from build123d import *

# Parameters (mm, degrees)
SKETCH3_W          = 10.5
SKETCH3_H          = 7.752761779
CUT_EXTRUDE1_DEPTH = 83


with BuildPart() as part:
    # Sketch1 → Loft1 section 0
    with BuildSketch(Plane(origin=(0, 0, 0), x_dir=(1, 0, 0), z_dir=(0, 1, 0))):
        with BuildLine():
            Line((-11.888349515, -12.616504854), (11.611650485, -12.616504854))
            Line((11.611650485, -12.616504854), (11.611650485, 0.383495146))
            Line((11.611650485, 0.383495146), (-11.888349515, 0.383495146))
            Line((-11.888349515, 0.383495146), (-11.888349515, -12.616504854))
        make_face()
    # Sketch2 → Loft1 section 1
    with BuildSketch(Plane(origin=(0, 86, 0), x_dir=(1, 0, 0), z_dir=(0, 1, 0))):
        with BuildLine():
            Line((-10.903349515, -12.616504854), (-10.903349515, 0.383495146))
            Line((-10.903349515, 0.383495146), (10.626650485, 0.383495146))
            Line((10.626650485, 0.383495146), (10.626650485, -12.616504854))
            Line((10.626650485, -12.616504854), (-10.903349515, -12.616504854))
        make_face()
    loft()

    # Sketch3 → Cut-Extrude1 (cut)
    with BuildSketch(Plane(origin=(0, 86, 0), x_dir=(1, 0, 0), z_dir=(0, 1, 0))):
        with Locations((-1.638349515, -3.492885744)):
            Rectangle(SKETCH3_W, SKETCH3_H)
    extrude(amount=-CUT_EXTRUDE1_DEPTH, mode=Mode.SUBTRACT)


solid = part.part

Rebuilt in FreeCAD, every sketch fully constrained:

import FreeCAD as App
import Part
import Sketcher
Q = App.Units.Quantity

doc = App.newDocument("Part")
body = doc.addObject("PartDesign::Body", "Body")

sketch1 = body.newObject("Sketcher::SketchObject", "Sketch")
sketch1.AttachmentSupport = (doc.getObject("XZ_Plane"), [""])
sketch1.MapMode = "FlatFace"
sketch1.addGeometry(Part.LineSegment(App.Vector(-12, 13, 0), App.Vector(12, 13, 0)), False)
sketch1.addGeometry(Part.LineSegment(App.Vector(12, 13, 0), App.Vector(12, 0, 0)), False)
sketch1.addGeometry(Part.LineSegment(App.Vector(12, 0, 0), App.Vector(-12, 0, 0)), False)
sketch1.addGeometry(Part.LineSegment(App.Vector(-12, 0, 0), App.Vector(-12, 13, 0)), False)
sketch1.addConstraint(Sketcher.Constraint("Coincident", 0, 2, 1, 1))
sketch1.addConstraint(Sketcher.Constraint("Coincident", 1, 2, 2, 1))
sketch1.addConstraint(Sketcher.Constraint("Coincident", 2, 2, 3, 1))
sketch1.addConstraint(Sketcher.Constraint("Coincident", 3, 2, 0, 1))
sketch1.addConstraint(Sketcher.Constraint("Horizontal", 0))
sketch1.addConstraint(Sketcher.Constraint("Vertical", 1))
sketch1.addConstraint(Sketcher.Constraint("Horizontal", 2))
sketch1.addConstraint(Sketcher.Constraint("Vertical", 3))
sketch1.addConstraint(Sketcher.Constraint("DistanceY", 1, 2, 1, 1, Q("13 mm")))
sketch1.addConstraint(Sketcher.Constraint("DistanceX", 0, 1, 0, 2, Q("23.5 mm")))
sketch1.addConstraint(Sketcher.Constraint("DistanceX", -1, 1, 0, 2, Q("11.61165 mm")))
sketch1.addConstraint(Sketcher.Constraint("DistanceY", -1, 1, 0, 2, Q("12.616505 mm")))

sketch2 = body.newObject("Sketcher::SketchObject", "Sketch001")
sketch2.AttachmentSupport = (doc.getObject("XZ_Plane"), [""])
sketch2.MapMode = "FlatFace"
sketch2.AttachmentOffset = App.Placement(App.Vector(0, 0, -86), App.Rotation())
sketch2.addGeometry(Part.LineSegment(App.Vector(-11, 0, 0), App.Vector(-11, 13, 0)), False)
sketch2.addGeometry(Part.LineSegment(App.Vector(-11, 13, 0), App.Vector(11, 13, 0)), False)
sketch2.addGeometry(Part.LineSegment(App.Vector(11, 13, 0), App.Vector(11, 0, 0)), False)
sketch2.addGeometry(Part.LineSegment(App.Vector(11, 0, 0), App.Vector(-11, 0, 0)), False)
sketch2.addConstraint(Sketcher.Constraint("Coincident", 0, 2, 1, 1))
sketch2.addConstraint(Sketcher.Constraint("Coincident", 1, 2, 2, 1))
sketch2.addConstraint(Sketcher.Constraint("Coincident", 2, 2, 3, 1))
sketch2.addConstraint(Sketcher.Constraint("Coincident", 3, 2, 0, 1))
sketch2.addConstraint(Sketcher.Constraint("Vertical", 0))
sketch2.addConstraint(Sketcher.Constraint("Horizontal", 1))
sketch2.addConstraint(Sketcher.Constraint("Vertical", 2))
sketch2.addConstraint(Sketcher.Constraint("Horizontal", 3))
sketch2.addConstraint(Sketcher.Constraint("DistanceY", 0, 1, 0, 2, Q("13 mm")))
sketch2.addConstraint(Sketcher.Constraint("DistanceX", 1, 1, 1, 2, Q("21.53 mm")))
sketch2.addConstraint(Sketcher.Constraint("DistanceX", 0, 2, -1, 1, Q("10.90335 mm")))
sketch2.addConstraint(Sketcher.Constraint("DistanceY", -1, 1, 0, 2, Q("12.616505 mm")))

additiveloft = body.newObject("PartDesign::AdditiveLoft", "AdditiveLoft")
additiveloft.Profile = sketch1
additiveloft.Sections = [sketch2]

sketch3 = body.newObject("Sketcher::SketchObject", "Sketch002")
sketch3.AttachmentSupport = (doc.getObject("XZ_Plane"), [""])
sketch3.MapMode = "FlatFace"
sketch3.AttachmentOffset = App.Placement(App.Vector(0, 0, -86), App.Rotation())
sketch3.addGeometry(Part.LineSegment(App.Vector(-7, 0, 0), App.Vector(-7, 7, 0)), False)
sketch3.addGeometry(Part.LineSegment(App.Vector(-7, 7, 0), App.Vector(4, 7, 0)), False)
sketch3.addGeometry(Part.LineSegment(App.Vector(4, 7, 0), App.Vector(4, 0, 0)), False)
sketch3.addGeometry(Part.LineSegment(App.Vector(4, 0, 0), App.Vector(-7, 0, 0)), False)
sketch3.addConstraint(Sketcher.Constraint("Coincident", 0, 2, 1, 1))
sketch3.addConstraint(Sketcher.Constraint("Coincident", 1, 2, 2, 1))
sketch3.addConstraint(Sketcher.Constraint("Coincident", 2, 2, 3, 1))
sketch3.addConstraint(Sketcher.Constraint("Coincident", 3, 2, 0, 1))
sketch3.addConstraint(Sketcher.Constraint("Vertical", 0))
sketch3.addConstraint(Sketcher.Constraint("Horizontal", 1))
sketch3.addConstraint(Sketcher.Constraint("Vertical", 2))
sketch3.addConstraint(Sketcher.Constraint("Horizontal", 3))
sketch3.addConstraint(Sketcher.Constraint("DistanceX", 1, 1, 1, 2, Q("10.5 mm")))
sketch3.addConstraint(Sketcher.Constraint("DistanceY", 0, 1, 0, 2, Q("7.752762 mm")))
sketch3.addConstraint(Sketcher.Constraint("DistanceX", 0, 2, -1, 1, Q("6.88835 mm")))
sketch3.addConstraint(Sketcher.Constraint("DistanceY", -1, 1, 0, 2, Q("7.369267 mm")))
pocket1 = body.newObject("PartDesign::Pocket", "Pocket")
pocket1.Profile = sketch3
pocket1.Length = 83
pocket1.Reversed = True

doc.recompute()
